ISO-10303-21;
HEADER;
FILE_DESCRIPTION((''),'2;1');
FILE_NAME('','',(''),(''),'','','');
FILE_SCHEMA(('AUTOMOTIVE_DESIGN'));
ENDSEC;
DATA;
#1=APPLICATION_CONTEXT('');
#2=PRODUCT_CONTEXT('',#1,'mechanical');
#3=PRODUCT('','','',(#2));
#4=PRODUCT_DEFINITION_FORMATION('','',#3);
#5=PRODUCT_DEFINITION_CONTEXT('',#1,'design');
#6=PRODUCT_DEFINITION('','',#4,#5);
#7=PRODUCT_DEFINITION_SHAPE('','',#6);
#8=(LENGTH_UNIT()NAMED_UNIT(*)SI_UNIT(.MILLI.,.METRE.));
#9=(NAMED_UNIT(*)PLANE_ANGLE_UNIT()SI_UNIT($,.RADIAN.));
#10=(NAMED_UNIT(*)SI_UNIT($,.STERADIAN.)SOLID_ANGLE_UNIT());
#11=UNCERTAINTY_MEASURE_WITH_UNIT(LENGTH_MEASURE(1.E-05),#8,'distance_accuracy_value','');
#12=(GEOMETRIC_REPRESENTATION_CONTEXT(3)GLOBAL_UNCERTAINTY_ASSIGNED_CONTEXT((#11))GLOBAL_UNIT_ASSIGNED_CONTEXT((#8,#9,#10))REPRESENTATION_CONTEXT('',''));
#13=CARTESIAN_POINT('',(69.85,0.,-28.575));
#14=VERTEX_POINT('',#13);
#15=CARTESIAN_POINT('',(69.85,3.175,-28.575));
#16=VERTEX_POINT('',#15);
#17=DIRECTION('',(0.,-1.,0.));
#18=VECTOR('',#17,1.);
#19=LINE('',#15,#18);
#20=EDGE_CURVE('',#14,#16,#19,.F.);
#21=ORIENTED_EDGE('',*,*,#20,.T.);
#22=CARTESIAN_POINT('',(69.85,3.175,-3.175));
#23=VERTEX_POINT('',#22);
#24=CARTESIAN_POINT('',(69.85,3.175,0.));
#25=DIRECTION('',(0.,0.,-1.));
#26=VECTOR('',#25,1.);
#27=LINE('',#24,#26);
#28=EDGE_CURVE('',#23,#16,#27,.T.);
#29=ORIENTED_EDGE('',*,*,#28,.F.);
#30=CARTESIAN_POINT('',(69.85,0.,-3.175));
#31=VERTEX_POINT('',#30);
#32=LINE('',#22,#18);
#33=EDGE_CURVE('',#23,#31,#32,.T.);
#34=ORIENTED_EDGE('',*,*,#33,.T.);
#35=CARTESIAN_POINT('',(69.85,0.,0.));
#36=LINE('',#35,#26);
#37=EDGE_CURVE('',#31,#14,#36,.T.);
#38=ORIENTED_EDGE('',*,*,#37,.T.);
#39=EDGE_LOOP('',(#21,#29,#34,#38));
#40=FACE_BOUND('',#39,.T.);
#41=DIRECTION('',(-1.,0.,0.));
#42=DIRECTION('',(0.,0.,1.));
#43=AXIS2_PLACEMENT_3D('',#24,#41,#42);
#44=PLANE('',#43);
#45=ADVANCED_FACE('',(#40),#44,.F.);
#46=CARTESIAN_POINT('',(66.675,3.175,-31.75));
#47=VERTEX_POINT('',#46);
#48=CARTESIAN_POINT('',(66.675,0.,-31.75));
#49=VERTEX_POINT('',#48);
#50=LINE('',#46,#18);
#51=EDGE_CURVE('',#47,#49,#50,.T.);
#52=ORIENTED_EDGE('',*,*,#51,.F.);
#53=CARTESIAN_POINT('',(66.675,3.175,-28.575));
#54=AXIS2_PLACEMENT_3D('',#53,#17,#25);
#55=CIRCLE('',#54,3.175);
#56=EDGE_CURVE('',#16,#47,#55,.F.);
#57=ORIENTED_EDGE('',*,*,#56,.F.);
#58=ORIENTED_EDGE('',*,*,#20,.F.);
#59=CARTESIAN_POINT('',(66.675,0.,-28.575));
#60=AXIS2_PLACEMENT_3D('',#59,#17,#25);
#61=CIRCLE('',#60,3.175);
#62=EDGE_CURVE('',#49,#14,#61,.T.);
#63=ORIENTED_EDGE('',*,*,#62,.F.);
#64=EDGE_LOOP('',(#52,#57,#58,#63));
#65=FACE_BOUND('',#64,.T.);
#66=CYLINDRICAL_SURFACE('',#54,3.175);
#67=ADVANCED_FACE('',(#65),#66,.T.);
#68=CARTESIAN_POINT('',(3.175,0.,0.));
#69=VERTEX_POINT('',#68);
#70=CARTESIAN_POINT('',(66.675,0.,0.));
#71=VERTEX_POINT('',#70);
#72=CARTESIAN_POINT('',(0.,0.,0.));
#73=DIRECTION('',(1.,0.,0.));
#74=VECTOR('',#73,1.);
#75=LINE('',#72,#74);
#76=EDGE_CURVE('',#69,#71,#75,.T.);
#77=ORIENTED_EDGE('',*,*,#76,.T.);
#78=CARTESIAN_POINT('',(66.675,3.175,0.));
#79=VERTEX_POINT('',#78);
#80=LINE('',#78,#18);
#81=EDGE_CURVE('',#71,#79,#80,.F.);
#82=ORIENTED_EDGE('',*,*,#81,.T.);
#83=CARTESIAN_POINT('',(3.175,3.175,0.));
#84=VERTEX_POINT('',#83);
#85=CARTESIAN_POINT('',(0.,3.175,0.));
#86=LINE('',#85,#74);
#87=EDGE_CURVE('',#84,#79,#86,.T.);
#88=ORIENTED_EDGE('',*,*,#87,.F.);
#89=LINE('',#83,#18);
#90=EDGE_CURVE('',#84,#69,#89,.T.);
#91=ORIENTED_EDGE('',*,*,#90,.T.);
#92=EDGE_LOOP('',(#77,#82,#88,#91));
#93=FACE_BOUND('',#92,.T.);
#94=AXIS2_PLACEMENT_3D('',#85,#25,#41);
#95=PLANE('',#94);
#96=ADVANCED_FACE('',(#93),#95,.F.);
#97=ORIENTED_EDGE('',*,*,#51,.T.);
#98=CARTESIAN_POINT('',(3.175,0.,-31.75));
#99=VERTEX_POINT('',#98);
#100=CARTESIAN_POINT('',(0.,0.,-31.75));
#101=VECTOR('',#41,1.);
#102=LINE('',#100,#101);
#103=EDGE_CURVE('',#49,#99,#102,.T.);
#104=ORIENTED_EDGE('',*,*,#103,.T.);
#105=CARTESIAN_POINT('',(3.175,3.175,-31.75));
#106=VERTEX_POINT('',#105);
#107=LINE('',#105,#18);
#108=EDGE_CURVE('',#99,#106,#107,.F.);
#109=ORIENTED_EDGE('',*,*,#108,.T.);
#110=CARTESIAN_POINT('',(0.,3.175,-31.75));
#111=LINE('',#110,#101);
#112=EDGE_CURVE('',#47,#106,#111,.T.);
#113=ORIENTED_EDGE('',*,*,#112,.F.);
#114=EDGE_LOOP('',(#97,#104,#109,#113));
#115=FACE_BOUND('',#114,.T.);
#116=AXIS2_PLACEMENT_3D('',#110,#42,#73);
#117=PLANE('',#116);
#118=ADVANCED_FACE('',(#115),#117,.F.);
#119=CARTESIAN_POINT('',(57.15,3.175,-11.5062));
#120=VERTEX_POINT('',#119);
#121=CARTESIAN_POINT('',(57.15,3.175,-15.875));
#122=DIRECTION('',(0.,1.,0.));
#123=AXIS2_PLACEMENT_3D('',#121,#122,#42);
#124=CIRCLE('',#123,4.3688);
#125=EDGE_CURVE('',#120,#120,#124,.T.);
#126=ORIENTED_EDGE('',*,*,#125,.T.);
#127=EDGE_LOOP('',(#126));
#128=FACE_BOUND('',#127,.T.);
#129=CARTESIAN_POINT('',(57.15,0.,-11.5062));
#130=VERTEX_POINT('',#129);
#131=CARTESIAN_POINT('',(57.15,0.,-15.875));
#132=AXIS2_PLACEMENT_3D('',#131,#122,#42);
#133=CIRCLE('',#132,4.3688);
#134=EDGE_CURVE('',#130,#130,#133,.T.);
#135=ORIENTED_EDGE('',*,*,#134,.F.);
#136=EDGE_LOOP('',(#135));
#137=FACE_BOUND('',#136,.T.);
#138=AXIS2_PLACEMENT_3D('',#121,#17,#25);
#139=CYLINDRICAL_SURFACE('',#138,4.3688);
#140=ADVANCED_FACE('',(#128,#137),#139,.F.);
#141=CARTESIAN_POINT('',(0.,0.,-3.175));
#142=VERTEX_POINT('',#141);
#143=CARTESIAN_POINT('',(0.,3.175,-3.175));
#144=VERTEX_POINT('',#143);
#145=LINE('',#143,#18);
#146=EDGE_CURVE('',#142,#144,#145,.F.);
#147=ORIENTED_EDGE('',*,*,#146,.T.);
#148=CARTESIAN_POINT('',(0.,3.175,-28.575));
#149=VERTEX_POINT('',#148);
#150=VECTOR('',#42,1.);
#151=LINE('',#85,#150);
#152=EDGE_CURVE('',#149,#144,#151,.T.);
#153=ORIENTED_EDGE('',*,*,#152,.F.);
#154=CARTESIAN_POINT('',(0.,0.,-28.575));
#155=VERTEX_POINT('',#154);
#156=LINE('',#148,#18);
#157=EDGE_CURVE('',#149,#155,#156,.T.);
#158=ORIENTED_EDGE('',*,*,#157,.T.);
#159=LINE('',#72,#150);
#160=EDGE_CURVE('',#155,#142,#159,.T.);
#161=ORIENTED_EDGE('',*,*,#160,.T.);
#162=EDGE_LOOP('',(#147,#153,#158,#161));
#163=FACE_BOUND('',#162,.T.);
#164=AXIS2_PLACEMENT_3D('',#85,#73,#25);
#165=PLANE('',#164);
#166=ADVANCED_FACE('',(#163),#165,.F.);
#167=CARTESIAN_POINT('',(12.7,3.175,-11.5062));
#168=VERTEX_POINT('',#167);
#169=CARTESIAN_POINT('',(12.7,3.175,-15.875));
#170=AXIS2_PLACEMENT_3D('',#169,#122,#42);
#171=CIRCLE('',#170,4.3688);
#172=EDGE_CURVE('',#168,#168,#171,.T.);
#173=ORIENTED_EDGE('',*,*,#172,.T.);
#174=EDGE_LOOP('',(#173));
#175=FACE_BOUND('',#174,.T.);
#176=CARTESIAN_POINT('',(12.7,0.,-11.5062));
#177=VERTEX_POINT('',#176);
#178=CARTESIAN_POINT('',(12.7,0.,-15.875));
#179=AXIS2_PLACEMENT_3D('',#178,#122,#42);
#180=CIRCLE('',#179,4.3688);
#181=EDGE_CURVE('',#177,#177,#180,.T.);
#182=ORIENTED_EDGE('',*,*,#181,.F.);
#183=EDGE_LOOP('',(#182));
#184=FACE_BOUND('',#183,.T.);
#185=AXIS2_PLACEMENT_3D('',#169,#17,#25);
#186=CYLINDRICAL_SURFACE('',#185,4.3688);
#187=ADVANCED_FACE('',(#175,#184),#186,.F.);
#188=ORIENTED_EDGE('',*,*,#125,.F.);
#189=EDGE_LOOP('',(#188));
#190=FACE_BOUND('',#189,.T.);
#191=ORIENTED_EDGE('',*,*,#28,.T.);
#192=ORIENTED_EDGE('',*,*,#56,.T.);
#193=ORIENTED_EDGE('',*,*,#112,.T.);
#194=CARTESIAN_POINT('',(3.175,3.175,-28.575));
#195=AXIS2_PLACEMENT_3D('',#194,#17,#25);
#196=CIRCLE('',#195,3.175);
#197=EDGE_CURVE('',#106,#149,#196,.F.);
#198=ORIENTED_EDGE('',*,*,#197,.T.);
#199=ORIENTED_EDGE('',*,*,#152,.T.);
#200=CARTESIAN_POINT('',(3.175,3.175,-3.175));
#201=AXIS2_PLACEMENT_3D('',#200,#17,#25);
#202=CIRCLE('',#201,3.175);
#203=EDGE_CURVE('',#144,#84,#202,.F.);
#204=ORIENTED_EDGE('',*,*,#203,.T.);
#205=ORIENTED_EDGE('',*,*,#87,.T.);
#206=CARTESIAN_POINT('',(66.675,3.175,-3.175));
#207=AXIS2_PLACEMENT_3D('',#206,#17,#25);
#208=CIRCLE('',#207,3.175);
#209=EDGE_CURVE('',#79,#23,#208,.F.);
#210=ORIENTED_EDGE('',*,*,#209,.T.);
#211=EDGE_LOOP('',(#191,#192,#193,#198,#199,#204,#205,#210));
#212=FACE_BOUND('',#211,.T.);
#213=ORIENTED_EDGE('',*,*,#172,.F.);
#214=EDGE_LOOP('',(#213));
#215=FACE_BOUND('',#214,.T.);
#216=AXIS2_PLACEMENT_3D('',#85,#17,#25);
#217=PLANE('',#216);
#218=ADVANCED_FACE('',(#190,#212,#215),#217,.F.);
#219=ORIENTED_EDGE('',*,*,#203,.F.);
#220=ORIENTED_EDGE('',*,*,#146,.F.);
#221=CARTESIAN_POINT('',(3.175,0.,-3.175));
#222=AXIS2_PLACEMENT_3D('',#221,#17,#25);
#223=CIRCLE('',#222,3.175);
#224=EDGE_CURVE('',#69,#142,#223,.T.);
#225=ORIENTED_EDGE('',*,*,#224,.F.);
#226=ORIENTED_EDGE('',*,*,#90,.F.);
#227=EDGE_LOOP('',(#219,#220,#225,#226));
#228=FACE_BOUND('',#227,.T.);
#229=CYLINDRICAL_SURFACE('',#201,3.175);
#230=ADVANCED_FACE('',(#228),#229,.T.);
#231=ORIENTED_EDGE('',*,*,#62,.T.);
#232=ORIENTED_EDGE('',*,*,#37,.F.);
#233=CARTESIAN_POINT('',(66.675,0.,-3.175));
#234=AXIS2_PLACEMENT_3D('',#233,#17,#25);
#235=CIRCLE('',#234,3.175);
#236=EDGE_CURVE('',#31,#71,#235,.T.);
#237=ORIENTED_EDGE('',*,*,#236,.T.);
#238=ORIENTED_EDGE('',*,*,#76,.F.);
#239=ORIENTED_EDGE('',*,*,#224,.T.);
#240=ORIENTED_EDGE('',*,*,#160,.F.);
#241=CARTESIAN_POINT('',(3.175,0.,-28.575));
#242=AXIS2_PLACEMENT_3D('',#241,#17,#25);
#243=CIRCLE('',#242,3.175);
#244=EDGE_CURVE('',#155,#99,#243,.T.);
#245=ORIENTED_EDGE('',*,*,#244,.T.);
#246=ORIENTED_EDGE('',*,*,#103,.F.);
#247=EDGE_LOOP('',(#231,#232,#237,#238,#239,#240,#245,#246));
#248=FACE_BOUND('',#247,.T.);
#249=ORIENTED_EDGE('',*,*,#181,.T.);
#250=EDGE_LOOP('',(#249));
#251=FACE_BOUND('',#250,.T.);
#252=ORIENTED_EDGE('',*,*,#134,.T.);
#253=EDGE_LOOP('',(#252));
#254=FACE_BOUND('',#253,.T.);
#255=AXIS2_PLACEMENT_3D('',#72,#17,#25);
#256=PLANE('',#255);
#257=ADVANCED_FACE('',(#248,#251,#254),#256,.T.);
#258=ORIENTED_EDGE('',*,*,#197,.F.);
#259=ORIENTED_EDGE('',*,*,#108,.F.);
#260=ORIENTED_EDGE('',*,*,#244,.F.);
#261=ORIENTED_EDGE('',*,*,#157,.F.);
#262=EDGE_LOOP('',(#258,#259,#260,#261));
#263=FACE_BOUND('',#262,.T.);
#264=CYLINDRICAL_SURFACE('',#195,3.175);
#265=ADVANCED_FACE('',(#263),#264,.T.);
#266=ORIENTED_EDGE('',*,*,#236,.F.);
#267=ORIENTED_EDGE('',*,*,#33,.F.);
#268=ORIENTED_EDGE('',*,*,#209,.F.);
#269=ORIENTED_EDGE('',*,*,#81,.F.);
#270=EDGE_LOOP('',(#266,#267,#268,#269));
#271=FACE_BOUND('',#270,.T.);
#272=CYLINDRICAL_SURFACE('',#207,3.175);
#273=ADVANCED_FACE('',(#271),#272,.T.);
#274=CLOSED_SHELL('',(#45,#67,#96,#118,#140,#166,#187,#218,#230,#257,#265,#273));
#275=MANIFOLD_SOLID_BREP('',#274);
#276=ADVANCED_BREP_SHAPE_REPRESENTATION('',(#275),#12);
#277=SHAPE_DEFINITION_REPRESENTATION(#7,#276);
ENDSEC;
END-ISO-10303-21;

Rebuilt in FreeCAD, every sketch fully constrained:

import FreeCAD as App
import Part
import Sketcher
Q = App.Units.Quantity


def edges_at(feature, points):
    """Names of the edges that pass closest to the given points."""
    edges = feature.Shape.Edges
    near = lambda p: min(range(len(edges)), key=lambda i: edges[i].distToShape(Part.Vertex(*p))[0])
    return sorted({f"Edge{near(p) + 1}" for p in points})

doc = App.newDocument("Part")
body = doc.addObject("PartDesign::Body", "Body")

sketch1 = body.newObject("Sketcher::SketchObject", "Sketch")
sketch1.AttachmentSupport = (doc.getObject("XZ_Plane"), [""])
sketch1.MapMode = "FlatFace"
sketch1.addGeometry([
    Part.LineSegment(App.Vector(0, -31.8, 0), App.Vector(0, 0, 0)),
    Part.LineSegment(App.Vector(0, 0, 0), App.Vector(69.8, 0, 0)),
    Part.LineSegment(App.Vector(69.8, 0, 0), App.Vector(69.8, -31.8, 0)),
    Part.LineSegment(App.Vector(69.8, -31.8, 0), App.Vector(0, -31.8, 0)),
    Part.Circle(App.Vector(12.7, -15.9, 0), App.Vector(0, 0, 1), 4.4),
    Part.Circle(App.Vector(57.1, -15.9, 0), App.Vector(0, 0, 1), 4.4),
], False)
sketch1.addConstraint([
    Sketcher.Constraint("Coincident", 0, 2, 1, 1),
    Sketcher.Constraint("Coincident", 1, 2, 2, 1),
    Sketcher.Constraint("Coincident", 2, 2, 3, 1),
    Sketcher.Constraint("Coincident", 3, 2, 0, 1),
    Sketcher.Constraint("Vertical", 0),
    Sketcher.Constraint("Horizontal", 1),
    Sketcher.Constraint("Vertical", 2),
    Sketcher.Constraint("Horizontal", 3),
    Sketcher.Constraint("Coincident", 0, 2, -1, 1),
    Sketcher.Constraint("Equal", 4, 5),
    Sketcher.Constraint("Horizontal", 4, 3, 5, 3),
    Sketcher.Constraint("Diameter", 4, Q("0.344 in")),
    Sketcher.Constraint("DistanceX", 1, 1, 1, 2, Q("2.75 in")),
    Sketcher.Constraint("DistanceY", 0, 1, 0, 2, Q("1.25 in")),
    Sketcher.Constraint("DistanceX", -1, 1, 4, 3, Q("0.5 in")),
    Sketcher.Constraint("DistanceX", 5, 3, 1, 2, Q("0.5 in")),
    Sketcher.Constraint("DistanceY", 4, 3, -1, 1, Q("0.625 in")),
])
pad1 = body.newObject("PartDesign::Pad", "Pad")
pad1.Profile = sketch1
pad1.Length = Q("0.125 in")
pad1.Reversed = True
doc.recompute()

fillet = body.newObject("PartDesign::Fillet", "Fillet")
fillet.Base = (pad1, edges_at(pad1, [
    (0, 1.587, -31.75),
    (69.85, 1.587, -31.75),
    (69.85, 1.587, 0),
    (0, 1.587, 0),
]))
fillet.Radius = Q("0.125 in")

doc.recompute()
